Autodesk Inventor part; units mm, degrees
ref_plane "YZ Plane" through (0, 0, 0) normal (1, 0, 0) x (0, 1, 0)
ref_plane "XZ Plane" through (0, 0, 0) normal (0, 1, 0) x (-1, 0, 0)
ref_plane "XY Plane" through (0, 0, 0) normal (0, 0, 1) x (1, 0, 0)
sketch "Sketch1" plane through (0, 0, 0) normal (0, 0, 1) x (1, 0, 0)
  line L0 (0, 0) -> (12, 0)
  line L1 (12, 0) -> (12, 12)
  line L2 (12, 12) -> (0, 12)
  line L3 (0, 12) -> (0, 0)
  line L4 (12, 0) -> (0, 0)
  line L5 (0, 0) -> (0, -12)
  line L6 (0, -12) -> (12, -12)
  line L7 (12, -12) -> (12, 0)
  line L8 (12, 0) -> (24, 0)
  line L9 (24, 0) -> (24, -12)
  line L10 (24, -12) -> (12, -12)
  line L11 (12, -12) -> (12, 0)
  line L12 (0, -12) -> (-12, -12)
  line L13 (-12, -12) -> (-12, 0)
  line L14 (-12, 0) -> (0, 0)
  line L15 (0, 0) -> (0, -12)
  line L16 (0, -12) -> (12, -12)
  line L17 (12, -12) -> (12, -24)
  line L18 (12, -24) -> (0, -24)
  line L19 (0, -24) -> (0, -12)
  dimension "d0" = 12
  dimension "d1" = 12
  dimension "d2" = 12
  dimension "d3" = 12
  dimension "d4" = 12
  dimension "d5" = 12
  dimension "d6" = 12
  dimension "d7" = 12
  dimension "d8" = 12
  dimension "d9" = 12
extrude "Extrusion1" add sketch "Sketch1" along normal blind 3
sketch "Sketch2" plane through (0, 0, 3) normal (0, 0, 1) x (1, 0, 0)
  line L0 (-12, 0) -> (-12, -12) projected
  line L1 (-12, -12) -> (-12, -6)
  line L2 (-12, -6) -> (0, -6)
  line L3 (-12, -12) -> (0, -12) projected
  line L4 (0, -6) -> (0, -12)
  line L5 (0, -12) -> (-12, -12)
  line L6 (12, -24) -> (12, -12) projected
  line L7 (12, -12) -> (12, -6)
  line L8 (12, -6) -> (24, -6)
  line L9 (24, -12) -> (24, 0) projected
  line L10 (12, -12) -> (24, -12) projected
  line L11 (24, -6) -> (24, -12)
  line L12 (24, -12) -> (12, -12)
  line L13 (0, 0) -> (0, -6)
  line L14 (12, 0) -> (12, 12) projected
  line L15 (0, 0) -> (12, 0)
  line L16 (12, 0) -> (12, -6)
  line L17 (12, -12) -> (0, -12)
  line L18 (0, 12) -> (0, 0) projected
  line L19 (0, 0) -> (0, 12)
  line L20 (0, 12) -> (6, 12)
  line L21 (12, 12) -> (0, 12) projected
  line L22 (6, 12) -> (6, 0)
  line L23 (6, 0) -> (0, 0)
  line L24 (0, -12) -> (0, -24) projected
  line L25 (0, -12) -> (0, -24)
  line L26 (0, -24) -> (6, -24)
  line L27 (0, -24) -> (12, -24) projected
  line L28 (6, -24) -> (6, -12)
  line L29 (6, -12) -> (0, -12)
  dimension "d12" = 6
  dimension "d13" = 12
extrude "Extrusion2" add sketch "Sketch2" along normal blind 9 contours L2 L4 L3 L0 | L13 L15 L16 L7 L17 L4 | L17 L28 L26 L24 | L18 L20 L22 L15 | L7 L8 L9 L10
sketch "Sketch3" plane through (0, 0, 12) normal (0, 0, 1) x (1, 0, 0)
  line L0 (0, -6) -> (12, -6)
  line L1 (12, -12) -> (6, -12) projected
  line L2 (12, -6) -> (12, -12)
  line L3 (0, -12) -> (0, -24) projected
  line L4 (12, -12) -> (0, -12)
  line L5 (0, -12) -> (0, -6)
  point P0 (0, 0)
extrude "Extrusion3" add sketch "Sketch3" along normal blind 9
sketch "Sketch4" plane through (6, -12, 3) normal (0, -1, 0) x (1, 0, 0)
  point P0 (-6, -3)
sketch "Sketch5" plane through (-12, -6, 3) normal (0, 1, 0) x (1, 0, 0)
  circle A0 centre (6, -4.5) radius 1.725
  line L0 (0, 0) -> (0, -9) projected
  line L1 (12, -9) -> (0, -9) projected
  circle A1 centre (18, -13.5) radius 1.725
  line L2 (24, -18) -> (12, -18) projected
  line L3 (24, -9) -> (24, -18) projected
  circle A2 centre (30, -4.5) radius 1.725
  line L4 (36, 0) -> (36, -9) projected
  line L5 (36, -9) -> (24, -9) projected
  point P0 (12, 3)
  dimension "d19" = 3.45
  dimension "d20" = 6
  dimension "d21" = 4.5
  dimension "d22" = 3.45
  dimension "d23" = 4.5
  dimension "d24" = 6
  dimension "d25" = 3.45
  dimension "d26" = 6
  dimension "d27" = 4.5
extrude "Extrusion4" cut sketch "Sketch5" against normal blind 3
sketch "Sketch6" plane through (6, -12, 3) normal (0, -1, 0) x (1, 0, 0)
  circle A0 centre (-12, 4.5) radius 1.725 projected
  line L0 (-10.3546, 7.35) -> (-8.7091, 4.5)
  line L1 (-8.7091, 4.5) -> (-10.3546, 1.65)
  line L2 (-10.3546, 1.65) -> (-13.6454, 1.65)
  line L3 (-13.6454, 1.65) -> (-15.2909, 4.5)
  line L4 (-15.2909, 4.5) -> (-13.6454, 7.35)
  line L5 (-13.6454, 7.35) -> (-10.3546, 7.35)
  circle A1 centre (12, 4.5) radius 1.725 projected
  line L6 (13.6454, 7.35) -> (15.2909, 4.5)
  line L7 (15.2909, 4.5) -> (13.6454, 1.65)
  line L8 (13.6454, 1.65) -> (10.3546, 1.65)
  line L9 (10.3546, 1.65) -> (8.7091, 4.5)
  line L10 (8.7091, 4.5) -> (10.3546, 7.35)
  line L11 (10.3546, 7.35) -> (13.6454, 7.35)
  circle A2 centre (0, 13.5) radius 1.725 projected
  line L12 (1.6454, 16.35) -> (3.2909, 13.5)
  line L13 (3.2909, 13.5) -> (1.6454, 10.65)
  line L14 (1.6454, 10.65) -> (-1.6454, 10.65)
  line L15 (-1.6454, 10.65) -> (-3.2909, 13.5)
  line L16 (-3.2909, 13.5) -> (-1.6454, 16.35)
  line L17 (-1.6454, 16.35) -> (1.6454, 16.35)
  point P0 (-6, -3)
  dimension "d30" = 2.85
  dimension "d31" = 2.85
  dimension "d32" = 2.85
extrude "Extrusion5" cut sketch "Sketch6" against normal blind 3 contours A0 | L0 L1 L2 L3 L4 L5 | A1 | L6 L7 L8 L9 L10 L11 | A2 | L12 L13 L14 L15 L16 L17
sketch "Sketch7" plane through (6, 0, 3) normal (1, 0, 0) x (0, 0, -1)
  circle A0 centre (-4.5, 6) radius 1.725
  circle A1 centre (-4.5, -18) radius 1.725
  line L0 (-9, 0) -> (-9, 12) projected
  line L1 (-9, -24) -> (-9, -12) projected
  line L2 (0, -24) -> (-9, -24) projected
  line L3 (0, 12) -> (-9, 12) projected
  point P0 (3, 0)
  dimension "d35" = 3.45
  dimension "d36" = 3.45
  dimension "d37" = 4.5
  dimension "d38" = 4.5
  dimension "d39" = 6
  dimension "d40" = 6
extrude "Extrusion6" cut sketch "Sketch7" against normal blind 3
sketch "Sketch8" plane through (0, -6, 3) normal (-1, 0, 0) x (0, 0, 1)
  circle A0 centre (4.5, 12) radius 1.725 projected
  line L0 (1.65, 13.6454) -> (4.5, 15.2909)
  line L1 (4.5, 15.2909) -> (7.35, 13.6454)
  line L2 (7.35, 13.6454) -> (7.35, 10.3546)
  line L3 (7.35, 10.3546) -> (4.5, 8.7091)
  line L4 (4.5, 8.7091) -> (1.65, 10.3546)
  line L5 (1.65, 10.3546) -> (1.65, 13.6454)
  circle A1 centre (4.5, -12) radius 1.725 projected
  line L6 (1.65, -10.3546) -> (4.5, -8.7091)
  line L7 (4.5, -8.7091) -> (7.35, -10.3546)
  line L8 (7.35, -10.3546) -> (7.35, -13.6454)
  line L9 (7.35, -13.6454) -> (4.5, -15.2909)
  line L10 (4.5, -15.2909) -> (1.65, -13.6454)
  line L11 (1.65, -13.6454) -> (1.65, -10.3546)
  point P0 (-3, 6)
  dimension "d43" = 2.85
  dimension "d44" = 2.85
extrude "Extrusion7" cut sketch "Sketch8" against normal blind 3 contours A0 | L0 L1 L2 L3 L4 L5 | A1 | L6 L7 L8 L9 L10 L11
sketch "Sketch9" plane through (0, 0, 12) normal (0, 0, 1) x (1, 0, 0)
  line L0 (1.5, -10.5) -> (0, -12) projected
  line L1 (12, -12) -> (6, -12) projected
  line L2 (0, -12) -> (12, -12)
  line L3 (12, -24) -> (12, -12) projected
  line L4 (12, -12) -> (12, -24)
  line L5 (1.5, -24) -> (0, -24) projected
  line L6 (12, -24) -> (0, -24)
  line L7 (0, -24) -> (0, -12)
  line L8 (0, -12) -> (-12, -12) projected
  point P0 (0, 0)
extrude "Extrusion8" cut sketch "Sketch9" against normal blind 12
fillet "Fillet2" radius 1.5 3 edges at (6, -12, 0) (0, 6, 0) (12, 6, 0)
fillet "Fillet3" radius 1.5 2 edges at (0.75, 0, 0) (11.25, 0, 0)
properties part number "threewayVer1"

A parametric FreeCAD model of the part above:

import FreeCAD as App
import Part
import Sketcher
Q = App.Units.Quantity


def edges_at(feature, points):
    """Names of the edges that pass closest to the given points."""
    edges = feature.Shape.Edges
    near = lambda p: min(range(len(edges)), key=lambda i: edges[i].distToShape(Part.Vertex(*p))[0])
    return sorted({f"Edge{near(p) + 1}" for p in points})


def add_polygon(sketch, points):
    """Adds a closed chain of lines whose ends are joined by coincident constraints."""
    first, n = sketch.GeometryCount, len(points)
    for a, b in zip(points, points[1:] + points[:1]):
        sketch.addGeometry(Part.LineSegment(App.Vector(*a, 0), App.Vector(*b, 0)), False)
    for i in range(n):
        sketch.addConstraint(Sketcher.Constraint("Coincident", first + i, 2, first + (i + 1) % n, 1))

doc = App.newDocument("Part")
params = doc.addObject("Spreadsheet::Sheet", "Params")
for row, (alias, value) in enumerate([
    ("sketch1_width", "12 mm"),
    ("pad1_length", "3 mm"),
    ("sketch2_width", "12 mm"),
    ("pad2_length", "9 mm"),
    ("sketch3_width", "12 mm"),
    ("sketch3_height", "6 mm"),
    ("pad3_length", "9 mm"),
    ("sketch4_diameter", "3.45 mm"),
    ("pocket1_length", "3 mm"),
    ("pocket2_length", "3 mm"),
    ("sketch6_diameter", "3.45 mm"),
    ("pocket3_length", "3 mm"),
    ("pocket4_length", "3 mm"),
    ("sketch8_width", "12 mm"),
    ("pocket5_length", "12 mm"),
    ("fillet_radius", "1.5 mm"),
    ("fillet2_radius", "1.5 mm"),
], start=1):
    params.set(f"A{row}", alias)
    params.set(f"B{row}", "=" + value)
    params.setAlias(f"B{row}", alias)

body = doc.addObject("PartDesign::Body", "Body")

sketch1 = body.newObject("Sketcher::SketchObject", "Sketch")
sketch1.AttachmentSupport = (doc.getObject("XY_Plane"), [""])
sketch1.MapMode = "FlatFace"
add_polygon(sketch1, [(0, 12), (0, 0), (-12, 0), (-12, -12), (0, -12), (0, -24), (12, -24), (12, -12), (24, -12), (24, 0), (12, 0), (12, 12)])
sketch1.addConstraint(Sketcher.Constraint("Vertical", 0))
sketch1.addConstraint(Sketcher.Constraint("Horizontal", 1))
sketch1.addConstraint(Sketcher.Constraint("Vertical", 2))
sketch1.addConstraint(Sketcher.Constraint("Horizontal", 3))
sketch1.addConstraint(Sketcher.Constraint("Vertical", 4))
sketch1.addConstraint(Sketcher.Constraint("Horizontal", 5))
sketch1.addConstraint(Sketcher.Constraint("Vertical", 6))
sketch1.addConstraint(Sketcher.Constraint("Horizontal", 7))
sketch1.addConstraint(Sketcher.Constraint("Vertical", 8))
sketch1.addConstraint(Sketcher.Constraint("Horizontal", 9))
sketch1.addConstraint(Sketcher.Constraint("Vertical", 10))
sketch1.addConstraint(Sketcher.Constraint("Horizontal", 11))
sketch1.addConstraint(Sketcher.Constraint("Coincident", 0, 2, -1, 1))
sketch1.addConstraint(Sketcher.Constraint("Symmetric", 1, 2, 9, 2, -1, 1))
sketch1.addConstraint(Sketcher.Constraint("Symmetric", 3, 2, 11, 2, -1, 1))
sketch1.addConstraint(Sketcher.Constraint("Symmetric", 2, 2, 6, 2, -2))
sketch1.addConstraint(Sketcher.Constraint("Equal", 5, 7))
sketch1.addConstraint(Sketcher.Constraint("Equal", 11, 0))
sketch1.addConstraint(Sketcher.Constraint("Equal", 2, 4))
sketch1.addConstraint(Sketcher.Constraint("DistanceX", 1, 2, 1, 1, 12.0))
sketch1.setExpression("Constraints[31]", "Params.sketch1_width")
pad1 = body.newObject("PartDesign::Pad", "Pad")
pad1.Profile = sketch1
pad1.setExpression("Length", "Params.pad1_length")

sketch2 = body.newObject("Sketcher::SketchObject", "Sketch001")
sketch2.AttachmentSupport = (doc.getObject("XY_Plane"), [""])
sketch2.MapMode = "FlatFace"
sketch2.AttachmentOffset = App.Placement(App.Vector(0, 0, 3), App.Rotation())
add_polygon(sketch2, [(0, -6), (-12, -6), (-12, -12), (0, -12), (0, -24), (6, -24), (6, -12), (24, -12), (24, -6), (12, -6), (12, 0), (6, 0), (6, 12), (0, 12)])
sketch2.addConstraint(Sketcher.Constraint("Horizontal", 0))
sketch2.addConstraint(Sketcher.Constraint("Vertical", 1))
sketch2.addConstraint(Sketcher.Constraint("Horizontal", 2))
sketch2.addConstraint(Sketcher.Constraint("Vertical", 3))
sketch2.addConstraint(Sketcher.Constraint("Horizontal", 4))
sketch2.addConstraint(Sketcher.Constraint("Vertical", 5))
sketch2.addConstraint(Sketcher.Constraint("Horizontal", 6))
sketch2.addConstraint(Sketcher.Constraint("Vertical", 7))
sketch2.addConstraint(Sketcher.Constraint("Horizontal", 8))
sketch2.addConstraint(Sketcher.Constraint("Vertical", 9))
sketch2.addConstraint(Sketcher.Constraint("Horizontal", 10))
sketch2.addConstraint(Sketcher.Constraint("Vertical", 11))
sketch2.addConstraint(Sketcher.Constraint("Horizontal", 12))
sketch2.addConstraint(Sketcher.Constraint("Vertical", 13))
sketch2.addConstraint(Sketcher.Constraint("Symmetric", 2, 2, 12, 2, -1, 1))
sketch2.addConstraint(Sketcher.Constraint("Symmetric", 0, 2, 8, 2, -2))
sketch2.addConstraint(Sketcher.Constraint("Symmetric", 5, 2, 11, 2, -1))
sketch2.addConstraint(Sketcher.Constraint("PointOnObject", 2, 2, -2))
sketch2.addConstraint(Sketcher.Constraint("PointOnObject", 9, 2, -1))
sketch2.addConstraint(Sketcher.Constraint("Equal", 2, 8))
sketch2.addConstraint(Sketcher.Constraint("Equal", 4, 10))
sketch2.addConstraint(Sketcher.Constraint("Equal", 12, 1))
sketch2.addConstraint(Sketcher.Constraint("Equal", 8, 3))
sketch2.addConstraint(Sketcher.Constraint("Equal", 7, 9))
sketch2.addConstraint(Sketcher.Constraint("DistanceX", 0, 2, 0, 1, 12.0))
sketch2.setExpression("Constraints[38]", "Params.sketch2_width")
pad2 = body.newObject("PartDesign::Pad", "Pad001")
pad2.Profile = sketch2
pad2.setExpression("Length", "Params.pad2_length")

sketch3 = body.newObject("Sketcher::SketchObject", "Sketch002")
sketch3.AttachmentSupport = (doc.getObject("XY_Plane"), [""])
sketch3.MapMode = "FlatFace"
sketch3.AttachmentOffset = App.Placement(App.Vector(0, 0, 12), App.Rotation())
add_polygon(sketch3, [(12, -6), (0, -6), (0, -12), (12, -12)])
sketch3.addConstraint(Sketcher.Constraint("Horizontal", 0))
sketch3.addConstraint(Sketcher.Constraint("Vertical", 1))
sketch3.addConstraint(Sketcher.Constraint("Horizontal", 2))
sketch3.addConstraint(Sketcher.Constraint("Vertical", 3))
sketch3.addConstraint(Sketcher.Constraint("PointOnObject", 0, 2, -2))
sketch3.addConstraint(Sketcher.Constraint("DistanceX", 0, 2, 0, 1, 12.0))
sketch3.addConstraint(Sketcher.Constraint("DistanceY", 1, 2, 1, 1, 6.0))
sketch3.addConstraint(Sketcher.Constraint("DistanceY", 0, 2, -1, 1, 6.0))
sketch3.setExpression("Constraints[9]", "Params.sketch3_width")
sketch3.setExpression("Constraints[10]", "Params.sketch3_height")
pad3 = body.newObject("PartDesign::Pad", "Pad002")
pad3.Profile = sketch3
pad3.setExpression("Length", "Params.pad3_length")

sketch4 = body.newObject("Sketcher::SketchObject", "Sketch003")
sketch4.AttachmentSupport = (doc.getObject("XZ_Plane"), [""])
sketch4.MapMode = "FlatFace"
sketch4.AttachmentOffset = App.Placement(App.Vector(0, 0, 6), App.Rotation())
sketch4.addGeometry(Part.Circle(App.Vector(-6, 7.5, 0), App.Vector(0, 0, 1), 1.7), False)
sketch4.addGeometry(Part.Circle(App.Vector(6, 16.5, 0), App.Vector(0, 0, 1), 1.7), False)
sketch4.addGeometry(Part.Circle(App.Vector(18, 7.5, 0), App.Vector(0, 0, 1), 1.7), False)
sketch4.addConstraint(Sketcher.Constraint("Equal", 0, 1))
sketch4.addConstraint(Sketcher.Constraint("Equal", 1, 2))
sketch4.addConstraint(Sketcher.Constraint("Horizontal", 0, 3, 2, 3))
sketch4.addConstraint(Sketcher.Constraint("Diameter", 0, 3.45))
sketch4.addConstraint(Sketcher.Constraint("DistanceX", 0, 3, -1, 1, 6.0))
sketch4.addConstraint(Sketcher.Constraint("DistanceX", -1, 1, 1, 3, 6.0))
sketch4.addConstraint(Sketcher.Constraint("DistanceX", -1, 1, 2, 3, 18.0))
sketch4.addConstraint(Sketcher.Constraint("DistanceY", 0, 3, 1, 3, 9.0))
sketch4.addConstraint(Sketcher.Constraint("DistanceY", -1, 1, 0, 3, 7.5))
sketch4.setExpression("Constraints[3]", "Params.sketch4_diameter")
pocket1 = body.newObject("PartDesign::Pocket", "Pocket")
pocket1.Profile = sketch4
pocket1.setExpression("Length", "Params.pocket1_length")
pocket1.Reversed = True

sketch5 = body.newObject("Sketcher::SketchObject", "Sketch004")
sketch5.AttachmentSupport = (doc.getObject("XZ_Plane"), [""])
sketch5.MapMode = "FlatFace"
sketch5.AttachmentOffset = App.Placement(App.Vector(0, 0, 12), App.Rotation())
add_polygon(sketch5, [(-2.7, 7.5), (-4.4, 10.3), (-7.6, 10.3), (-9.3, 7.5), (-7.6, 4.7), (-4.4, 4.7)])
add_polygon(sketch5, [(21.3, 7.5), (19.6, 10.3), (16.4, 10.3), (14.7, 7.5), (16.4, 4.7), (19.6, 4.7)])
add_polygon(sketch5, [(9.3, 16.5), (7.6, 19.4), (4.4, 19.4), (2.7, 16.5), (4.4, 13.7), (7.6, 13.7)])
sketch5.addConstraint(Sketcher.Constraint("Horizontal", 1))
sketch5.addConstraint(Sketcher.Constraint("Horizontal", 4))
sketch5.addConstraint(Sketcher.Constraint("Horizontal", 7))
sketch5.addConstraint(Sketcher.Constraint("Horizontal", 10))
sketch5.addConstraint(Sketcher.Constraint("Horizontal", 13))
sketch5.addConstraint(Sketcher.Constraint("Horizontal", 16))
sketch5.addConstraint(Sketcher.Constraint("Parallel", 0, 3))
sketch5.addConstraint(Sketcher.Constraint("Parallel", 2, 5))
sketch5.addConstraint(Sketcher.Constraint("Parallel", 3, 6))
sketch5.addConstraint(Sketcher.Constraint("Parallel", 5, 8))
sketch5.addConstraint(Sketcher.Constraint("Parallel", 6, 9))
sketch5.addConstraint(Sketcher.Constraint("Parallel", 8, 11))
sketch5.addConstraint(Sketcher.Constraint("Parallel", 9, 12))
sketch5.addConstraint(Sketcher.Constraint("Parallel", 11, 14))
sketch5.addConstraint(Sketcher.Constraint("Parallel", 12, 15))
sketch5.addConstraint(Sketcher.Constraint("Parallel", 14, 17))
sketch5.addConstraint(Sketcher.Constraint("Horizontal", 2, 2, 5, 2))
sketch5.addConstraint(Sketcher.Constraint("Horizontal", 1, 2, 6, 2))
sketch5.addConstraint(Sketcher.Constraint("Horizontal", 5, 2, 8, 2))
sketch5.addConstraint(Sketcher.Constraint("Horizontal", 4, 2, 9, 2))
sketch5.addConstraint(Sketcher.Constraint("Horizontal", 8, 2, 11, 2))
sketch5.addConstraint(Sketcher.Constraint("Horizontal", 14, 2, 17, 2))
sketch5.addConstraint(Sketcher.Constraint("Vertical", 1, 2, 3, 2))
sketch5.addConstraint(Sketcher.Constraint("Vertical", 0, 2, 4, 2))
sketch5.addConstraint(Sketcher.Constraint("Vertical", 13, 2, 15, 2))
sketch5.addConstraint(Sketcher.Constraint("Equal", 4, 7))
sketch5.addConstraint(Sketcher.Constraint("Equal", 10, 13))
sketch5.addConstraint(Sketcher.Constraint("Equal", 11, 12))
sketch5.addConstraint(Sketcher.Constraint("Angle", 0, Q("120.0008 deg")))
sketch5.addConstraint(Sketcher.Constraint("DistanceY", 2, 2, 1, 2, 2.85))
sketch5.addConstraint(Sketcher.Constraint("DistanceX", 0, 2, 6, 2, 24.0))
sketch5.addConstraint(Sketcher.Constraint("DistanceY", 7, 2, 12, 2, 9.0))
sketch5.addConstraint(Sketcher.Constraint("DistanceX", 12, 2, 6, 2, 12.0))
sketch5.addConstraint(Sketcher.Constraint("DistanceY", -1, 1, 2, 2, 7.5))
sketch5.addConstraint(Sketcher.Constraint("DistanceX", 1, 2, 1, 1, 3.2908))
sketch5.addConstraint(Sketcher.Constraint("DistanceX", 2, 2, -1, 1, 9.291))
pocket2 = body.newObject("PartDesign::Pocket", "Pocket001")
pocket2.Profile = sketch5
pocket2.setExpression("Length", "Params.pocket2_length")

sketch6 = body.newObject("Sketcher::SketchObject", "Sketch005")
sketch6.AttachmentSupport = (doc.getObject("YZ_Plane"), [""])
sketch6.MapMode = "FlatFace"
sketch6.AttachmentOffset = App.Placement(App.Vector(0, 0, 6), App.Rotation())
sketch6.addGeometry(Part.Circle(App.Vector(6, 7.5, 0), App.Vector(0, 0, 1), 1.7), False)
sketch6.addGeometry(Part.Circle(App.Vector(-18, 7.5, 0), App.Vector(0, 0, 1), 1.7), False)
sketch6.addConstraint(Sketcher.Constraint("Equal", 0, 1))
sketch6.addConstraint(Sketcher.Constraint("Horizontal", 0, 3, 1, 3))
sketch6.addConstraint(Sketcher.Constraint("Diameter", 0, 3.45))
sketch6.addConstraint(Sketcher.Constraint("DistanceX", -1, 1, 0, 3, 6.0))
sketch6.addConstraint(Sketcher.Constraint("DistanceX", 1, 3, -1, 1, 18.0))
sketch6.addConstraint(Sketcher.Constraint("DistanceY", -1, 1, 0, 3, 7.5))
sketch6.setExpression("Constraints[2]", "Params.sketch6_diameter")
pocket3 = body.newObject("PartDesign::Pocket", "Pocket002")
pocket3.Profile = sketch6
pocket3.setExpression("Length", "Params.pocket3_length")

sketch7 = body.newObject("Sketcher::SketchObject", "Sketch006")
sketch7.AttachmentSupport = (doc.getObject("YZ_Plane"), [""])
sketch7.MapMode = "FlatFace"
add_polygon(sketch7, [(9.3, 7.5), (7.6, 4.7), (4.4, 4.7), (2.7, 7.5), (4.4, 10.3), (7.6, 10.3)])
add_polygon(sketch7, [(-14.7, 7.5), (-16.4, 4.7), (-19.6, 4.7), (-21.3, 7.5), (-19.6, 10.3), (-16.4, 10.3)])
sketch7.addConstraint(Sketcher.Constraint("Horizontal", 1))
sketch7.addConstraint(Sketcher.Constraint("Horizontal", 4))
sketch7.addConstraint(Sketcher.Constraint("Horizontal", 7))
sketch7.addConstraint(Sketcher.Constraint("Horizontal", 10))
sketch7.addConstraint(Sketcher.Constraint("Parallel", 0, 3))
sketch7.addConstraint(Sketcher.Constraint("Parallel", 2, 5))
sketch7.addConstraint(Sketcher.Constraint("Parallel", 3, 6))
sketch7.addConstraint(Sketcher.Constraint("Parallel", 5, 8))
sketch7.addConstraint(Sketcher.Constraint("Parallel", 6, 9))
sketch7.addConstraint(Sketcher.Constraint("Parallel", 8, 11))
sketch7.addConstraint(Sketcher.Constraint("Horizontal", 2, 2, 5, 2))
sketch7.addConstraint(Sketcher.Constraint("Horizontal", 1, 2, 6, 2))
sketch7.addConstraint(Sketcher.Constraint("Horizontal", 5, 2, 8, 2))
sketch7.addConstraint(Sketcher.Constraint("Horizontal", 4, 2, 9, 2))
sketch7.addConstraint(Sketcher.Constraint("Horizontal", 8, 2, 11, 2))
sketch7.addConstraint(Sketcher.Constraint("Vertical", 1, 2, 3, 2))
sketch7.addConstraint(Sketcher.Constraint("Vertical", 0, 2, 4, 2))
sketch7.addConstraint(Sketcher.Constraint("Equal", 4, 7))
sketch7.addConstraint(Sketcher.Constraint("Angle", 0, Q("-120.0008 deg")))
sketch7.addConstraint(Sketcher.Constraint("DistanceY", 1, 2, 2, 2, 2.85))
sketch7.addConstraint(Sketcher.Constraint("DistanceX", 6, 2, 0, 2, 24.0))
sketch7.addConstraint(Sketcher.Constraint("DistanceY", -1, 1, 2, 2, 7.5))
sketch7.addConstraint(Sketcher.Constraint("DistanceX", 1, 2, 1, 1, 3.2908))
sketch7.addConstraint(Sketcher.Constraint("DistanceX", -1, 1, 2, 2, 2.709))
pocket4 = body.newObject("PartDesign::Pocket", "Pocket003")
pocket4.Profile = sketch7
pocket4.setExpression("Length", "Params.pocket4_length")
pocket4.Reversed = True

sketch8 = body.newObject("Sketcher::SketchObject", "Sketch007")
sketch8.AttachmentSupport = (doc.getObject("XY_Plane"), [""])
sketch8.MapMode = "FlatFace"
sketch8.AttachmentOffset = App.Placement(App.Vector(0, 0, 12), App.Rotation())
add_polygon(sketch8, [(12, -24), (12, -12), (0, -12), (0, -24)])
sketch8.addConstraint(Sketcher.Constraint("Vertical", 0))
sketch8.addConstraint(Sketcher.Constraint("Horizontal", 1))
sketch8.addConstraint(Sketcher.Constraint("Vertical", 2))
sketch8.addConstraint(Sketcher.Constraint("Horizontal", 3))
sketch8.addConstraint(Sketcher.Constraint("PointOnObject", 1, 2, -2))
sketch8.addConstraint(Sketcher.Constraint("Equal", 3, 0))
sketch8.addConstraint(Sketcher.Constraint("DistanceX", 1, 2, 1, 1, 12.0))
sketch8.addConstraint(Sketcher.Constraint("DistanceY", 0, 2, -1, 1, 12.0))
sketch8.setExpression("Constraints[10]", "Params.sketch8_width")
pocket5 = body.newObject("PartDesign::Pocket", "Pocket004")
pocket5.Profile = sketch8
pocket5.setExpression("Length", "Params.pocket5_length")
doc.recompute()

fillet = body.newObject("PartDesign::Fillet", "Fillet")
fillet.Base = (pocket5, edges_at(pocket5, [(6, -12, 0), (0, 6, 0), (12, 6, 0)]))
fillet.setExpression("Radius", "Params.fillet_radius")
doc.recompute()

fillet2 = body.newObject("PartDesign::Fillet", "Fillet001")
fillet2.Base = (fillet, edges_at(fillet, [(0.75, 0, 0), (11.25, 0, 0)]))
fillet2.setExpression("Radius", "Params.fillet2_radius")

doc.recompute()
